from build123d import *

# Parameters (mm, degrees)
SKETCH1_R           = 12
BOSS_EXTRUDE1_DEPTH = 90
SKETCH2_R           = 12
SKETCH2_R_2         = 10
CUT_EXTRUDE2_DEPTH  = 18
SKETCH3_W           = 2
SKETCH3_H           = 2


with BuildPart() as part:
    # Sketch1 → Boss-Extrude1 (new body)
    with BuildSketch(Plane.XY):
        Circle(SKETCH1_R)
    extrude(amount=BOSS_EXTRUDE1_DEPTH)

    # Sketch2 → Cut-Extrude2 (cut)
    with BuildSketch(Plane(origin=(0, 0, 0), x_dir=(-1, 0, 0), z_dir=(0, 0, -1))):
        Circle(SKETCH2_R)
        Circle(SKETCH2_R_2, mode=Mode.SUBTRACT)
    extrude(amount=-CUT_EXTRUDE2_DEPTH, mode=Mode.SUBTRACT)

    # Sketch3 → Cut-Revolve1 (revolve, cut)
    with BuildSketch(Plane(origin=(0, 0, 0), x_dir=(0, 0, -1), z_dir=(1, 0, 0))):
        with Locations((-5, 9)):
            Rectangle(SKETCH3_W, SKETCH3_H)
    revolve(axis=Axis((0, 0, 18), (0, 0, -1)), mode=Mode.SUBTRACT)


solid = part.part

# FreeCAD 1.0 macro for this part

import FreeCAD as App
import Part
import Sketcher

V = App.Vector


def add_polygon(sketch, points):
    """Adds a closed chain of lines whose ends are joined by coincident constraints."""
    first, n = sketch.GeometryCount, len(points)
    for a, b in zip(points, points[1:] + points[:1]):
        sketch.addGeometry(Part.LineSegment(App.Vector(*a, 0), App.Vector(*b, 0)), False)
    for i in range(n):
        sketch.addConstraint(Sketcher.Constraint("Coincident", first + i, 2, first + (i + 1) % n, 1))

doc = App.newDocument("Part")
body = doc.addObject("PartDesign::Body", "Body")

sketch1 = body.newObject("Sketcher::SketchObject", "Sketch")
sketch1.AttachmentSupport = (doc.getObject("XY_Plane"), [""])
sketch1.MapMode = "FlatFace"
sketch1.addGeometry(Part.Circle(V(0, 0, 0), V(0, 0, 1), 12), False)
sketch1.addConstraint([
    Sketcher.Constraint("Coincident", 0, 3, -1, 1),
    Sketcher.Constraint("Diameter", 0, 24.0),
])
pad1 = body.newObject("PartDesign::Pad", "Pad")
pad1.Profile = sketch1
pad1.Length = 90

sketch2 = body.newObject("Sketcher::SketchObject", "Sketch001")
sketch2.AttachmentSupport = (doc.getObject("XY_Plane"), [""])
sketch2.MapMode = "FlatFace"
sketch2.addGeometry([
    Part.Circle(V(0, 0, 0), V(0, 0, 1), 12),
    Part.Circle(V(0, 0, 0), V(0, 0, 1), 10),
], False)
sketch2.addConstraint([
    Sketcher.Constraint("Coincident", 0, 3, -1, 1),
    Sketcher.Constraint("Coincident", 1, 3, -1, 1),
    Sketcher.Constraint("Diameter", 0, 24.0),
    Sketcher.Constraint("Diameter", 1, 20.0),
])
pocket1 = body.newObject("PartDesign::Pocket", "Pocket")
pocket1.Profile = sketch2
pocket1.Length = 18
pocket1.Reversed = True

sketch3 = body.newObject("Sketcher::SketchObject", "Sketch002")
sketch3.AttachmentSupport = (doc.getObject("YZ_Plane"), [""])
sketch3.MapMode = "FlatFace"
add_polygon(sketch3, [(10, 6), (8, 6), (8, 4), (10, 4)])
sketch3.addConstraint([
    Sketcher.Constraint("Horizontal", 0),
    Sketcher.Constraint("Vertical", 1),
    Sketcher.Constraint("Horizontal", 2),
    Sketcher.Constraint("Vertical", 3),
    Sketcher.Constraint("Equal", 2, 1),
    Sketcher.Constraint("DistanceX", 0, 2, 0, 1, 2.0),
    Sketcher.Constraint("DistanceX", -1, 1, 0, 2, 8.0),
    Sketcher.Constraint("DistanceY", -1, 1, 0, 2, 6.0),
])
groove = body.newObject("PartDesign::Groove", "Groove")
groove.Profile = sketch3
groove.ReferenceAxis = (sketch3, ["V_Axis"])
groove.Angle = 360

doc.recompute()
